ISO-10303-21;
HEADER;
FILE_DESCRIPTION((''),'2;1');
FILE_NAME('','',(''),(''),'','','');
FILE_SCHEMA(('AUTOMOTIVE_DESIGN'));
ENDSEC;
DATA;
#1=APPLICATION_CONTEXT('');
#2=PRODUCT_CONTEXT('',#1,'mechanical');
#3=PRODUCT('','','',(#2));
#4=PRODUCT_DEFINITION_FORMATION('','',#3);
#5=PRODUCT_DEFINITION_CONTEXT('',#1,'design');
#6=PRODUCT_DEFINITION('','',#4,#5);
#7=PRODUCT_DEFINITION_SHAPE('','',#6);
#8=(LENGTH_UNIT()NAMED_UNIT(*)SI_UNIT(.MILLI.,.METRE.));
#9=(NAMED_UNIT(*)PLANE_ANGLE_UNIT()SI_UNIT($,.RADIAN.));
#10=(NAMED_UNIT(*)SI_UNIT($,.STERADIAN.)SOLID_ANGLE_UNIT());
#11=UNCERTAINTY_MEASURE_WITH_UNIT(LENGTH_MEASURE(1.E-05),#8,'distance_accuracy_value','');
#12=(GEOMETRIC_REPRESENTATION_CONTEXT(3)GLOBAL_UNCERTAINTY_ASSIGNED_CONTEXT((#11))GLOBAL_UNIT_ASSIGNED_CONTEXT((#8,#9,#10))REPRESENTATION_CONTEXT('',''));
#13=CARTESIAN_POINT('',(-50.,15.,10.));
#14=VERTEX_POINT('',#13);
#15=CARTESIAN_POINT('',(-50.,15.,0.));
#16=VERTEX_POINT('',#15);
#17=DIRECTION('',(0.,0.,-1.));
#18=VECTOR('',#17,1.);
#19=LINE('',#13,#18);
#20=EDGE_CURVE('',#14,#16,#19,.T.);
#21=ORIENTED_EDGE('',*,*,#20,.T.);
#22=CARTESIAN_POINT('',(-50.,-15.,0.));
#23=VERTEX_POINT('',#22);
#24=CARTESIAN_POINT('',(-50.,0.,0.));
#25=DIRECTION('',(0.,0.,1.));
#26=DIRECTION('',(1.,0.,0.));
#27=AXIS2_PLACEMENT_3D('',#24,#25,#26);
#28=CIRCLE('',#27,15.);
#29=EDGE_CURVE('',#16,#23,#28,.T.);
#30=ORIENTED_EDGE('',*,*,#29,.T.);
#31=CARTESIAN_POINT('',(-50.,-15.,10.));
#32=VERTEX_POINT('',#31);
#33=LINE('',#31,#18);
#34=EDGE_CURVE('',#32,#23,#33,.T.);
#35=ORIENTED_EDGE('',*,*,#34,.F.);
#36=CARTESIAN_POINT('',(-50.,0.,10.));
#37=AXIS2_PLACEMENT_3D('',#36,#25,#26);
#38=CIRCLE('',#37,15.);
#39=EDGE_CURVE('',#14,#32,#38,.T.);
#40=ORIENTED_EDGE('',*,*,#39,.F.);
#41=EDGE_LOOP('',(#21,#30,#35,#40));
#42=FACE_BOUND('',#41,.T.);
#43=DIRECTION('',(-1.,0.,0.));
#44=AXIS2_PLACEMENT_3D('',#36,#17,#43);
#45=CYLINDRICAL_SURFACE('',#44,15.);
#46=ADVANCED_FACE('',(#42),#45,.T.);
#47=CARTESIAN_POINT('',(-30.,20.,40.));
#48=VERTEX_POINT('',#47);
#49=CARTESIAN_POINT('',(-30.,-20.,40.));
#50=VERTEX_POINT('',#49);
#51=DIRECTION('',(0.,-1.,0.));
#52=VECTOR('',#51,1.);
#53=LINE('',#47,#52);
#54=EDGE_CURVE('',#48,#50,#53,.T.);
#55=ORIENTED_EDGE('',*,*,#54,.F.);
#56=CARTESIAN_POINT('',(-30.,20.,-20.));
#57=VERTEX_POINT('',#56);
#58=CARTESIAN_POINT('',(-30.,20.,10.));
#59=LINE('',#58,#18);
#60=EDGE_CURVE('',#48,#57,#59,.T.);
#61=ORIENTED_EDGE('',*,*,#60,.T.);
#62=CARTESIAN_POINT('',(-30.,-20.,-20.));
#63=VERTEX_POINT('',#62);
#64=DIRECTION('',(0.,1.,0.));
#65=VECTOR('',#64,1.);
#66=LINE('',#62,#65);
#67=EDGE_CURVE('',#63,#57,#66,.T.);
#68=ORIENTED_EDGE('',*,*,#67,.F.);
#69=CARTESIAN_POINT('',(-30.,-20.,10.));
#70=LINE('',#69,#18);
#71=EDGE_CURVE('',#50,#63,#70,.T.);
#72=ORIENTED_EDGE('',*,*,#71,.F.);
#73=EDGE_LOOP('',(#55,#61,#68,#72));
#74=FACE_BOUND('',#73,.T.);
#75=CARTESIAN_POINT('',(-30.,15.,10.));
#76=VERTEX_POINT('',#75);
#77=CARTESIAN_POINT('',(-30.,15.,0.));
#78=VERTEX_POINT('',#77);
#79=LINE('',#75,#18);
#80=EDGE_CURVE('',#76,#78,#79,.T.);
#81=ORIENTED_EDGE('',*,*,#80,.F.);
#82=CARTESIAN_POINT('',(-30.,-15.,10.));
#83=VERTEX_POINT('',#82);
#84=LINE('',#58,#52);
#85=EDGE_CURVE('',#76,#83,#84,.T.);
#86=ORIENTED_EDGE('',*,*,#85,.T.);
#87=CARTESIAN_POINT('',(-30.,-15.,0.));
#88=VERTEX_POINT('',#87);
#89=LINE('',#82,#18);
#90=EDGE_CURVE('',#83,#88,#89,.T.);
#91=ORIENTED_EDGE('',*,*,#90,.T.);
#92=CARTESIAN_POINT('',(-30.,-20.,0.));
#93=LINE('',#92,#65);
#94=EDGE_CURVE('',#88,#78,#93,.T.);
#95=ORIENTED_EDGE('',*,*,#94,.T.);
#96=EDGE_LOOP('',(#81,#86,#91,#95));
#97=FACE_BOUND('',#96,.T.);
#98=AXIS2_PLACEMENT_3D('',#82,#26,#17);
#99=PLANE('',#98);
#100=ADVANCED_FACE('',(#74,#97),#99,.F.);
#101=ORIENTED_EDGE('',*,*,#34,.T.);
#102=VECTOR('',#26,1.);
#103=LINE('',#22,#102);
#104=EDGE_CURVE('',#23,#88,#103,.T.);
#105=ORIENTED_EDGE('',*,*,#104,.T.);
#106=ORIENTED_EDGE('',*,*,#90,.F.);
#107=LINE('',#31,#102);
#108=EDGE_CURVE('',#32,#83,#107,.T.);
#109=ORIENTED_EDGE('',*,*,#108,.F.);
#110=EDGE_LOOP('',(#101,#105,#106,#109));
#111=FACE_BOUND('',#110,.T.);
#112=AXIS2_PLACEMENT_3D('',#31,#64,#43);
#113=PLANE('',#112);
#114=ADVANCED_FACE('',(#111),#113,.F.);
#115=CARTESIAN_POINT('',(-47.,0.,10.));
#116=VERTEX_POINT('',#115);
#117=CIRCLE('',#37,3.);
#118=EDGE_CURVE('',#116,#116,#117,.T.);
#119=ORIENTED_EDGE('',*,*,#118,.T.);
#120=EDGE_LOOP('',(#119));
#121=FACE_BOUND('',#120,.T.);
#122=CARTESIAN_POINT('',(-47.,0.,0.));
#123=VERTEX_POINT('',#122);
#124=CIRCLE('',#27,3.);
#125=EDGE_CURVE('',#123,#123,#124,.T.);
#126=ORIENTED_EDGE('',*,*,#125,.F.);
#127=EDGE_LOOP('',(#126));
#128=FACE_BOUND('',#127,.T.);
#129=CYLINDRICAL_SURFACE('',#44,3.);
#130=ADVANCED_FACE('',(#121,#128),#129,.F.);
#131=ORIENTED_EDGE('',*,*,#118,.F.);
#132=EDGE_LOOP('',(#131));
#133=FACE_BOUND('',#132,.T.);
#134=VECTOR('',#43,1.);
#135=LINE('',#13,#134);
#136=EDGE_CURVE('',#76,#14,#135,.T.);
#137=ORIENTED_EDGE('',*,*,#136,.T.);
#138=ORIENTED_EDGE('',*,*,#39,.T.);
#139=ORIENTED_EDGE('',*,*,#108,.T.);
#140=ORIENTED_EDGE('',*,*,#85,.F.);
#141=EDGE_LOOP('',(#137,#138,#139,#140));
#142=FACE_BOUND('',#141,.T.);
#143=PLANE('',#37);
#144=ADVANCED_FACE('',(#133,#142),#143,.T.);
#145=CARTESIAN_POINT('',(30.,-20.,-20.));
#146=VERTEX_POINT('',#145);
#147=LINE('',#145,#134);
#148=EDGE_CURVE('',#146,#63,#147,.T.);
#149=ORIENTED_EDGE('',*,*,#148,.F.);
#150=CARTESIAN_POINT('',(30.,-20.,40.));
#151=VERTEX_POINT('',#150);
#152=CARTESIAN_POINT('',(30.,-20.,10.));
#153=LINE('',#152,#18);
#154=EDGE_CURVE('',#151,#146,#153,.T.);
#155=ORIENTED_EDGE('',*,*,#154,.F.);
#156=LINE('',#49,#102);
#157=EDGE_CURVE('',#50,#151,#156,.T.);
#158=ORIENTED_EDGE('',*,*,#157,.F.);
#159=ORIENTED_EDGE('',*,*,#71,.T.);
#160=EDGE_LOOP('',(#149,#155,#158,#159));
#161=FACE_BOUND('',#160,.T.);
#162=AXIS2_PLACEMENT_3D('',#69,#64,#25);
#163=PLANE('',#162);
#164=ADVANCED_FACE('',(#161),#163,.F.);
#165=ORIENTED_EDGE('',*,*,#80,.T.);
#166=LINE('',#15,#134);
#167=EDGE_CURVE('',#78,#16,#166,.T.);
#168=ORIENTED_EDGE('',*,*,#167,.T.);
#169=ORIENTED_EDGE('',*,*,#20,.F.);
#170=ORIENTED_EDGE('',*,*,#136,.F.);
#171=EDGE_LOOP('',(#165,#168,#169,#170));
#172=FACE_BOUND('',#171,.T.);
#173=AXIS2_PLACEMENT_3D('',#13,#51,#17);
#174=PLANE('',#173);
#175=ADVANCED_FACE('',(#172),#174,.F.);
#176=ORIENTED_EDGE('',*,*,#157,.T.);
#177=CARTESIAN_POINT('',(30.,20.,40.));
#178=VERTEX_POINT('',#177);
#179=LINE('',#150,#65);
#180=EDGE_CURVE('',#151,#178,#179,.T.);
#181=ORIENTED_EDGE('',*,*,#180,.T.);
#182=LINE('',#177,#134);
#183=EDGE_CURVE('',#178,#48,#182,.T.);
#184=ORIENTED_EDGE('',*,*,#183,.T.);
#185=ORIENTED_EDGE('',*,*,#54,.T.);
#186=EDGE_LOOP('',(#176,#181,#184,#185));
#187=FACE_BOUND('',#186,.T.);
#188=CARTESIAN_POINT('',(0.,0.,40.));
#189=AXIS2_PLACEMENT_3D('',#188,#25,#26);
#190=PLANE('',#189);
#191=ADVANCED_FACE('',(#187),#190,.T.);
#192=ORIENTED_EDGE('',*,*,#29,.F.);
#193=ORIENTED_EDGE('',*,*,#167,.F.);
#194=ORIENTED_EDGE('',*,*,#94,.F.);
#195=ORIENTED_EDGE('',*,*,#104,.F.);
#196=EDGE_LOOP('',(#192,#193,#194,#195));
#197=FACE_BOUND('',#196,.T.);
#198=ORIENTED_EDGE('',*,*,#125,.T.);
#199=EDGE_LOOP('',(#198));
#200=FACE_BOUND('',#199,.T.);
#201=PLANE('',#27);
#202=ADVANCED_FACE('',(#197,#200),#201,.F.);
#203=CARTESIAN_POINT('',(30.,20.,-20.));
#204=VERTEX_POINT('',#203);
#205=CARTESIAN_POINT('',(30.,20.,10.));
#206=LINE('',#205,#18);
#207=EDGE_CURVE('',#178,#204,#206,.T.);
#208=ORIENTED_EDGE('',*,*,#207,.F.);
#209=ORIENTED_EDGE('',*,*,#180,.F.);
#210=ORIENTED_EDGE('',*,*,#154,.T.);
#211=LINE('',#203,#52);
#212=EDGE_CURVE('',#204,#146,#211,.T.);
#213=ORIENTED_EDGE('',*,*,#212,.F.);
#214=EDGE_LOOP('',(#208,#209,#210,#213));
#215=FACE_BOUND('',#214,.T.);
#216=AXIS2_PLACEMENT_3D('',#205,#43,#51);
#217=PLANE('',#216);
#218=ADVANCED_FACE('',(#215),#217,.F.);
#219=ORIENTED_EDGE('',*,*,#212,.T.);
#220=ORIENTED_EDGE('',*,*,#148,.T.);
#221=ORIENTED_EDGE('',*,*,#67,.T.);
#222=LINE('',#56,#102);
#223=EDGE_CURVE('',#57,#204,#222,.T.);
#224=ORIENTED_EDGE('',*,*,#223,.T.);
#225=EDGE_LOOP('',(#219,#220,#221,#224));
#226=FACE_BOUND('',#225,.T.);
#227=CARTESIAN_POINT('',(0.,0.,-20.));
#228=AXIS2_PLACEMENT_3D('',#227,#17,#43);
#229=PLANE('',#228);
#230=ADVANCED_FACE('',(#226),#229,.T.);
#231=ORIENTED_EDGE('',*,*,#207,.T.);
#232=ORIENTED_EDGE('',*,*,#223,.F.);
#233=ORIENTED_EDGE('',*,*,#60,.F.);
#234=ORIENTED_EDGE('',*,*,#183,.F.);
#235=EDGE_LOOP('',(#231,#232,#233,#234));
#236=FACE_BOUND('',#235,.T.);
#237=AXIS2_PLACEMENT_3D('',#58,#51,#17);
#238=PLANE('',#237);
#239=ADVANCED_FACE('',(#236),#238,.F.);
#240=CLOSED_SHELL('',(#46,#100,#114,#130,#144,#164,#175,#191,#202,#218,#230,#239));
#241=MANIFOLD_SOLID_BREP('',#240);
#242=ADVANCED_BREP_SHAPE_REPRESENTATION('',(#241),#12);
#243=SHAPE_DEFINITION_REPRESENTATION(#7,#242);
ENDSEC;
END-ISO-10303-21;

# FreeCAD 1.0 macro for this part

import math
import FreeCAD as App
import Part
import Sketcher
from FreeCAD import Vector


def add_polygon(sketch, points):
    """Adds a closed chain of lines whose ends are joined by coincident constraints."""
    first, n = sketch.GeometryCount, len(points)
    for a, b in zip(points, points[1:] + points[:1]):
        sketch.addGeometry(Part.LineSegment(App.Vector(*a, 0), App.Vector(*b, 0)), False)
    for i in range(n):
        sketch.addConstraint(Sketcher.Constraint("Coincident", first + i, 2, first + (i + 1) % n, 1))

doc = App.newDocument("Part")
params = doc.addObject("Spreadsheet::Sheet", "Params")
for row, (alias, value) in enumerate([
    ("sketch1_diameter", "6 mm"),
    ("sketch1_radius", "15 mm"),
    ("sketch1_width", "60 mm"),
    ("sketch1_width2", "20 mm"),
    ("sketch1_height", "5 mm"),
    ("pad1_length", "10 mm"),
    ("sketch2_width", "60 mm"),
    ("sketch2_height", "40 mm"),
    ("pad2_length", "30 mm"),
    ("sketch3_width", "60 mm"),
    ("sketch3_height", "40 mm"),
    ("pad3_length", "20 mm"),
], start=1):
    params.set(f"A{row}", alias)
    params.set(f"B{row}", "=" + value)
    params.setAlias(f"B{row}", alias)

body = doc.addObject("PartDesign::Body", "Body")

# Sketch on XY plane
sketch1 = body.newObject("Sketcher::SketchObject", "Sketch")
sketch1.AttachmentSupport = (doc.getObject("XY_Plane"), [""])
sketch1.MapMode = "FlatFace"
sketch1.addGeometry([
    Part.LineSegment(Vector(-30, -15, 0), Vector(-30, -20, 0)),  # 0
    Part.LineSegment(Vector(-30, -20, 0), Vector(30, -20, 0)),  # 1
    Part.LineSegment(Vector(30, -20, 0), Vector(30, 20, 0)),  # 2
    Part.LineSegment(Vector(30, 20, 0), Vector(-30, 20, 0)),  # 3
    Part.LineSegment(Vector(-30, 20, 0), Vector(-30, 15, 0)),  # 4
    Part.LineSegment(Vector(-30, 15, 0), Vector(-50, 15, 0)),  # 5
    Part.ArcOfCircle(Part.Circle(Vector(-50, 0, 0), Vector(0, 0, 1), 15), math.radians(90), math.radians(270)),  # 6
    Part.LineSegment(Vector(-50, -15, 0), Vector(-30, -15, 0)),  # 7
    Part.Circle(Vector(-50, 0, 0), Vector(0, 0, 1), 3),  # 8
], False)
sketch1.addConstraint([
    Sketcher.Constraint("Coincident", 0, 2, 1, 1),
    Sketcher.Constraint("Coincident", 1, 2, 2, 1),
    Sketcher.Constraint("Coincident", 2, 2, 3, 1),
    Sketcher.Constraint("Coincident", 3, 2, 4, 1),
    Sketcher.Constraint("Coincident", 4, 2, 5, 1),
    Sketcher.Constraint("Tangent", 5, 2, 6, 1),
    Sketcher.Constraint("Tangent", 6, 2, 7, 1),
    Sketcher.Constraint("Coincident", 7, 2, 0, 1),
    Sketcher.Constraint("Vertical", 0),
    Sketcher.Constraint("Horizontal", 1),
    Sketcher.Constraint("Vertical", 2),
    Sketcher.Constraint("Horizontal", 3),
    Sketcher.Constraint("Vertical", 4),
    Sketcher.Constraint("Horizontal", 5),
    Sketcher.Constraint("Horizontal", 7),
    Sketcher.Constraint("Coincident", 8, 3, 6, 3),
    Sketcher.Constraint("Symmetric", 0, 2, 2, 2, -1, 1),
    Sketcher.Constraint("Symmetric", 4, 2, 7, 2, -1),
    Sketcher.Constraint("Diameter", 8, 6.0),
    Sketcher.Constraint("Radius", 6, 15.0),
    Sketcher.Constraint("DistanceX", 1, 1, 1, 2, 60.0),
    Sketcher.Constraint("DistanceX", 5, 2, 5, 1, 20.0),
    Sketcher.Constraint("DistanceY", 0, 2, 0, 1, 5.0),
])
sketch1.setExpression("Constraints[18]", "Params.sketch1_diameter")
sketch1.setExpression("Constraints[19]", "Params.sketch1_radius")
sketch1.setExpression("Constraints[20]", "Params.sketch1_width")
sketch1.setExpression("Constraints[21]", "Params.sketch1_width2")
sketch1.setExpression("Constraints[22]", "Params.sketch1_height")
pad1 = body.newObject("PartDesign::Pad", "Pad")
pad1.Profile = sketch1
pad1.setExpression("Length", "Params.pad1_length")

# Sketch on XY plane
sketch2 = body.newObject("Sketcher::SketchObject", "Sketch001")
sketch2.AttachmentSupport = (doc.getObject("XY_Plane"), [""])
sketch2.MapMode = "FlatFace"
sketch2.AttachmentOffset = App.Placement(Vector(0, 0, 10), App.Rotation())
add_polygon(sketch2, [(-30, 20), (-30, -20), (30, -20), (30, 20)])  # lines 0-3
sketch2.addConstraint([
    Sketcher.Constraint("Vertical", 0),
    Sketcher.Constraint("Horizontal", 1),
    Sketcher.Constraint("Vertical", 2),
    Sketcher.Constraint("Horizontal", 3),
    Sketcher.Constraint("Symmetric", 0, 2, 2, 2, -1, 1),
    Sketcher.Constraint("DistanceX", 1, 1, 1, 2, 60.0),
    Sketcher.Constraint("DistanceY", 0, 2, 0, 1, 40.0),
])
sketch2.setExpression("Constraints[9]", "Params.sketch2_width")
sketch2.setExpression("Constraints[10]", "Params.sketch2_height")
pad2 = body.newObject("PartDesign::Pad", "Pad001")
pad2.Profile = sketch2
pad2.setExpression("Length", "Params.pad2_length")

# Sketch on XY plane
sketch3 = body.newObject("Sketcher::SketchObject", "Sketch002")
sketch3.AttachmentSupport = (doc.getObject("XY_Plane"), [""])
sketch3.MapMode = "FlatFace"
add_polygon(sketch3, [(30, 20), (30, -20), (-30, -20), (-30, 20)])  # lines 0-3
sketch3.addConstraint([
    Sketcher.Constraint("Vertical", 0),
    Sketcher.Constraint("Horizontal", 1),
    Sketcher.Constraint("Vertical", 2),
    Sketcher.Constraint("Horizontal", 3),
    Sketcher.Constraint("Symmetric", 0, 2, 2, 2, -1, 1),
    Sketcher.Constraint("DistanceX", 1, 2, 1, 1, 60.0),
    Sketcher.Constraint("DistanceY", 0, 2, 0, 1, 40.0),
])
sketch3.setExpression("Constraints[9]", "Params.sketch3_width")
sketch3.setExpression("Constraints[10]", "Params.sketch3_height")
pad3 = body.newObject("PartDesign::Pad", "Pad002")
pad3.Profile = sketch3
pad3.setExpression("Length", "Params.pad3_length")
pad3.Reversed = True

doc.recompute()
